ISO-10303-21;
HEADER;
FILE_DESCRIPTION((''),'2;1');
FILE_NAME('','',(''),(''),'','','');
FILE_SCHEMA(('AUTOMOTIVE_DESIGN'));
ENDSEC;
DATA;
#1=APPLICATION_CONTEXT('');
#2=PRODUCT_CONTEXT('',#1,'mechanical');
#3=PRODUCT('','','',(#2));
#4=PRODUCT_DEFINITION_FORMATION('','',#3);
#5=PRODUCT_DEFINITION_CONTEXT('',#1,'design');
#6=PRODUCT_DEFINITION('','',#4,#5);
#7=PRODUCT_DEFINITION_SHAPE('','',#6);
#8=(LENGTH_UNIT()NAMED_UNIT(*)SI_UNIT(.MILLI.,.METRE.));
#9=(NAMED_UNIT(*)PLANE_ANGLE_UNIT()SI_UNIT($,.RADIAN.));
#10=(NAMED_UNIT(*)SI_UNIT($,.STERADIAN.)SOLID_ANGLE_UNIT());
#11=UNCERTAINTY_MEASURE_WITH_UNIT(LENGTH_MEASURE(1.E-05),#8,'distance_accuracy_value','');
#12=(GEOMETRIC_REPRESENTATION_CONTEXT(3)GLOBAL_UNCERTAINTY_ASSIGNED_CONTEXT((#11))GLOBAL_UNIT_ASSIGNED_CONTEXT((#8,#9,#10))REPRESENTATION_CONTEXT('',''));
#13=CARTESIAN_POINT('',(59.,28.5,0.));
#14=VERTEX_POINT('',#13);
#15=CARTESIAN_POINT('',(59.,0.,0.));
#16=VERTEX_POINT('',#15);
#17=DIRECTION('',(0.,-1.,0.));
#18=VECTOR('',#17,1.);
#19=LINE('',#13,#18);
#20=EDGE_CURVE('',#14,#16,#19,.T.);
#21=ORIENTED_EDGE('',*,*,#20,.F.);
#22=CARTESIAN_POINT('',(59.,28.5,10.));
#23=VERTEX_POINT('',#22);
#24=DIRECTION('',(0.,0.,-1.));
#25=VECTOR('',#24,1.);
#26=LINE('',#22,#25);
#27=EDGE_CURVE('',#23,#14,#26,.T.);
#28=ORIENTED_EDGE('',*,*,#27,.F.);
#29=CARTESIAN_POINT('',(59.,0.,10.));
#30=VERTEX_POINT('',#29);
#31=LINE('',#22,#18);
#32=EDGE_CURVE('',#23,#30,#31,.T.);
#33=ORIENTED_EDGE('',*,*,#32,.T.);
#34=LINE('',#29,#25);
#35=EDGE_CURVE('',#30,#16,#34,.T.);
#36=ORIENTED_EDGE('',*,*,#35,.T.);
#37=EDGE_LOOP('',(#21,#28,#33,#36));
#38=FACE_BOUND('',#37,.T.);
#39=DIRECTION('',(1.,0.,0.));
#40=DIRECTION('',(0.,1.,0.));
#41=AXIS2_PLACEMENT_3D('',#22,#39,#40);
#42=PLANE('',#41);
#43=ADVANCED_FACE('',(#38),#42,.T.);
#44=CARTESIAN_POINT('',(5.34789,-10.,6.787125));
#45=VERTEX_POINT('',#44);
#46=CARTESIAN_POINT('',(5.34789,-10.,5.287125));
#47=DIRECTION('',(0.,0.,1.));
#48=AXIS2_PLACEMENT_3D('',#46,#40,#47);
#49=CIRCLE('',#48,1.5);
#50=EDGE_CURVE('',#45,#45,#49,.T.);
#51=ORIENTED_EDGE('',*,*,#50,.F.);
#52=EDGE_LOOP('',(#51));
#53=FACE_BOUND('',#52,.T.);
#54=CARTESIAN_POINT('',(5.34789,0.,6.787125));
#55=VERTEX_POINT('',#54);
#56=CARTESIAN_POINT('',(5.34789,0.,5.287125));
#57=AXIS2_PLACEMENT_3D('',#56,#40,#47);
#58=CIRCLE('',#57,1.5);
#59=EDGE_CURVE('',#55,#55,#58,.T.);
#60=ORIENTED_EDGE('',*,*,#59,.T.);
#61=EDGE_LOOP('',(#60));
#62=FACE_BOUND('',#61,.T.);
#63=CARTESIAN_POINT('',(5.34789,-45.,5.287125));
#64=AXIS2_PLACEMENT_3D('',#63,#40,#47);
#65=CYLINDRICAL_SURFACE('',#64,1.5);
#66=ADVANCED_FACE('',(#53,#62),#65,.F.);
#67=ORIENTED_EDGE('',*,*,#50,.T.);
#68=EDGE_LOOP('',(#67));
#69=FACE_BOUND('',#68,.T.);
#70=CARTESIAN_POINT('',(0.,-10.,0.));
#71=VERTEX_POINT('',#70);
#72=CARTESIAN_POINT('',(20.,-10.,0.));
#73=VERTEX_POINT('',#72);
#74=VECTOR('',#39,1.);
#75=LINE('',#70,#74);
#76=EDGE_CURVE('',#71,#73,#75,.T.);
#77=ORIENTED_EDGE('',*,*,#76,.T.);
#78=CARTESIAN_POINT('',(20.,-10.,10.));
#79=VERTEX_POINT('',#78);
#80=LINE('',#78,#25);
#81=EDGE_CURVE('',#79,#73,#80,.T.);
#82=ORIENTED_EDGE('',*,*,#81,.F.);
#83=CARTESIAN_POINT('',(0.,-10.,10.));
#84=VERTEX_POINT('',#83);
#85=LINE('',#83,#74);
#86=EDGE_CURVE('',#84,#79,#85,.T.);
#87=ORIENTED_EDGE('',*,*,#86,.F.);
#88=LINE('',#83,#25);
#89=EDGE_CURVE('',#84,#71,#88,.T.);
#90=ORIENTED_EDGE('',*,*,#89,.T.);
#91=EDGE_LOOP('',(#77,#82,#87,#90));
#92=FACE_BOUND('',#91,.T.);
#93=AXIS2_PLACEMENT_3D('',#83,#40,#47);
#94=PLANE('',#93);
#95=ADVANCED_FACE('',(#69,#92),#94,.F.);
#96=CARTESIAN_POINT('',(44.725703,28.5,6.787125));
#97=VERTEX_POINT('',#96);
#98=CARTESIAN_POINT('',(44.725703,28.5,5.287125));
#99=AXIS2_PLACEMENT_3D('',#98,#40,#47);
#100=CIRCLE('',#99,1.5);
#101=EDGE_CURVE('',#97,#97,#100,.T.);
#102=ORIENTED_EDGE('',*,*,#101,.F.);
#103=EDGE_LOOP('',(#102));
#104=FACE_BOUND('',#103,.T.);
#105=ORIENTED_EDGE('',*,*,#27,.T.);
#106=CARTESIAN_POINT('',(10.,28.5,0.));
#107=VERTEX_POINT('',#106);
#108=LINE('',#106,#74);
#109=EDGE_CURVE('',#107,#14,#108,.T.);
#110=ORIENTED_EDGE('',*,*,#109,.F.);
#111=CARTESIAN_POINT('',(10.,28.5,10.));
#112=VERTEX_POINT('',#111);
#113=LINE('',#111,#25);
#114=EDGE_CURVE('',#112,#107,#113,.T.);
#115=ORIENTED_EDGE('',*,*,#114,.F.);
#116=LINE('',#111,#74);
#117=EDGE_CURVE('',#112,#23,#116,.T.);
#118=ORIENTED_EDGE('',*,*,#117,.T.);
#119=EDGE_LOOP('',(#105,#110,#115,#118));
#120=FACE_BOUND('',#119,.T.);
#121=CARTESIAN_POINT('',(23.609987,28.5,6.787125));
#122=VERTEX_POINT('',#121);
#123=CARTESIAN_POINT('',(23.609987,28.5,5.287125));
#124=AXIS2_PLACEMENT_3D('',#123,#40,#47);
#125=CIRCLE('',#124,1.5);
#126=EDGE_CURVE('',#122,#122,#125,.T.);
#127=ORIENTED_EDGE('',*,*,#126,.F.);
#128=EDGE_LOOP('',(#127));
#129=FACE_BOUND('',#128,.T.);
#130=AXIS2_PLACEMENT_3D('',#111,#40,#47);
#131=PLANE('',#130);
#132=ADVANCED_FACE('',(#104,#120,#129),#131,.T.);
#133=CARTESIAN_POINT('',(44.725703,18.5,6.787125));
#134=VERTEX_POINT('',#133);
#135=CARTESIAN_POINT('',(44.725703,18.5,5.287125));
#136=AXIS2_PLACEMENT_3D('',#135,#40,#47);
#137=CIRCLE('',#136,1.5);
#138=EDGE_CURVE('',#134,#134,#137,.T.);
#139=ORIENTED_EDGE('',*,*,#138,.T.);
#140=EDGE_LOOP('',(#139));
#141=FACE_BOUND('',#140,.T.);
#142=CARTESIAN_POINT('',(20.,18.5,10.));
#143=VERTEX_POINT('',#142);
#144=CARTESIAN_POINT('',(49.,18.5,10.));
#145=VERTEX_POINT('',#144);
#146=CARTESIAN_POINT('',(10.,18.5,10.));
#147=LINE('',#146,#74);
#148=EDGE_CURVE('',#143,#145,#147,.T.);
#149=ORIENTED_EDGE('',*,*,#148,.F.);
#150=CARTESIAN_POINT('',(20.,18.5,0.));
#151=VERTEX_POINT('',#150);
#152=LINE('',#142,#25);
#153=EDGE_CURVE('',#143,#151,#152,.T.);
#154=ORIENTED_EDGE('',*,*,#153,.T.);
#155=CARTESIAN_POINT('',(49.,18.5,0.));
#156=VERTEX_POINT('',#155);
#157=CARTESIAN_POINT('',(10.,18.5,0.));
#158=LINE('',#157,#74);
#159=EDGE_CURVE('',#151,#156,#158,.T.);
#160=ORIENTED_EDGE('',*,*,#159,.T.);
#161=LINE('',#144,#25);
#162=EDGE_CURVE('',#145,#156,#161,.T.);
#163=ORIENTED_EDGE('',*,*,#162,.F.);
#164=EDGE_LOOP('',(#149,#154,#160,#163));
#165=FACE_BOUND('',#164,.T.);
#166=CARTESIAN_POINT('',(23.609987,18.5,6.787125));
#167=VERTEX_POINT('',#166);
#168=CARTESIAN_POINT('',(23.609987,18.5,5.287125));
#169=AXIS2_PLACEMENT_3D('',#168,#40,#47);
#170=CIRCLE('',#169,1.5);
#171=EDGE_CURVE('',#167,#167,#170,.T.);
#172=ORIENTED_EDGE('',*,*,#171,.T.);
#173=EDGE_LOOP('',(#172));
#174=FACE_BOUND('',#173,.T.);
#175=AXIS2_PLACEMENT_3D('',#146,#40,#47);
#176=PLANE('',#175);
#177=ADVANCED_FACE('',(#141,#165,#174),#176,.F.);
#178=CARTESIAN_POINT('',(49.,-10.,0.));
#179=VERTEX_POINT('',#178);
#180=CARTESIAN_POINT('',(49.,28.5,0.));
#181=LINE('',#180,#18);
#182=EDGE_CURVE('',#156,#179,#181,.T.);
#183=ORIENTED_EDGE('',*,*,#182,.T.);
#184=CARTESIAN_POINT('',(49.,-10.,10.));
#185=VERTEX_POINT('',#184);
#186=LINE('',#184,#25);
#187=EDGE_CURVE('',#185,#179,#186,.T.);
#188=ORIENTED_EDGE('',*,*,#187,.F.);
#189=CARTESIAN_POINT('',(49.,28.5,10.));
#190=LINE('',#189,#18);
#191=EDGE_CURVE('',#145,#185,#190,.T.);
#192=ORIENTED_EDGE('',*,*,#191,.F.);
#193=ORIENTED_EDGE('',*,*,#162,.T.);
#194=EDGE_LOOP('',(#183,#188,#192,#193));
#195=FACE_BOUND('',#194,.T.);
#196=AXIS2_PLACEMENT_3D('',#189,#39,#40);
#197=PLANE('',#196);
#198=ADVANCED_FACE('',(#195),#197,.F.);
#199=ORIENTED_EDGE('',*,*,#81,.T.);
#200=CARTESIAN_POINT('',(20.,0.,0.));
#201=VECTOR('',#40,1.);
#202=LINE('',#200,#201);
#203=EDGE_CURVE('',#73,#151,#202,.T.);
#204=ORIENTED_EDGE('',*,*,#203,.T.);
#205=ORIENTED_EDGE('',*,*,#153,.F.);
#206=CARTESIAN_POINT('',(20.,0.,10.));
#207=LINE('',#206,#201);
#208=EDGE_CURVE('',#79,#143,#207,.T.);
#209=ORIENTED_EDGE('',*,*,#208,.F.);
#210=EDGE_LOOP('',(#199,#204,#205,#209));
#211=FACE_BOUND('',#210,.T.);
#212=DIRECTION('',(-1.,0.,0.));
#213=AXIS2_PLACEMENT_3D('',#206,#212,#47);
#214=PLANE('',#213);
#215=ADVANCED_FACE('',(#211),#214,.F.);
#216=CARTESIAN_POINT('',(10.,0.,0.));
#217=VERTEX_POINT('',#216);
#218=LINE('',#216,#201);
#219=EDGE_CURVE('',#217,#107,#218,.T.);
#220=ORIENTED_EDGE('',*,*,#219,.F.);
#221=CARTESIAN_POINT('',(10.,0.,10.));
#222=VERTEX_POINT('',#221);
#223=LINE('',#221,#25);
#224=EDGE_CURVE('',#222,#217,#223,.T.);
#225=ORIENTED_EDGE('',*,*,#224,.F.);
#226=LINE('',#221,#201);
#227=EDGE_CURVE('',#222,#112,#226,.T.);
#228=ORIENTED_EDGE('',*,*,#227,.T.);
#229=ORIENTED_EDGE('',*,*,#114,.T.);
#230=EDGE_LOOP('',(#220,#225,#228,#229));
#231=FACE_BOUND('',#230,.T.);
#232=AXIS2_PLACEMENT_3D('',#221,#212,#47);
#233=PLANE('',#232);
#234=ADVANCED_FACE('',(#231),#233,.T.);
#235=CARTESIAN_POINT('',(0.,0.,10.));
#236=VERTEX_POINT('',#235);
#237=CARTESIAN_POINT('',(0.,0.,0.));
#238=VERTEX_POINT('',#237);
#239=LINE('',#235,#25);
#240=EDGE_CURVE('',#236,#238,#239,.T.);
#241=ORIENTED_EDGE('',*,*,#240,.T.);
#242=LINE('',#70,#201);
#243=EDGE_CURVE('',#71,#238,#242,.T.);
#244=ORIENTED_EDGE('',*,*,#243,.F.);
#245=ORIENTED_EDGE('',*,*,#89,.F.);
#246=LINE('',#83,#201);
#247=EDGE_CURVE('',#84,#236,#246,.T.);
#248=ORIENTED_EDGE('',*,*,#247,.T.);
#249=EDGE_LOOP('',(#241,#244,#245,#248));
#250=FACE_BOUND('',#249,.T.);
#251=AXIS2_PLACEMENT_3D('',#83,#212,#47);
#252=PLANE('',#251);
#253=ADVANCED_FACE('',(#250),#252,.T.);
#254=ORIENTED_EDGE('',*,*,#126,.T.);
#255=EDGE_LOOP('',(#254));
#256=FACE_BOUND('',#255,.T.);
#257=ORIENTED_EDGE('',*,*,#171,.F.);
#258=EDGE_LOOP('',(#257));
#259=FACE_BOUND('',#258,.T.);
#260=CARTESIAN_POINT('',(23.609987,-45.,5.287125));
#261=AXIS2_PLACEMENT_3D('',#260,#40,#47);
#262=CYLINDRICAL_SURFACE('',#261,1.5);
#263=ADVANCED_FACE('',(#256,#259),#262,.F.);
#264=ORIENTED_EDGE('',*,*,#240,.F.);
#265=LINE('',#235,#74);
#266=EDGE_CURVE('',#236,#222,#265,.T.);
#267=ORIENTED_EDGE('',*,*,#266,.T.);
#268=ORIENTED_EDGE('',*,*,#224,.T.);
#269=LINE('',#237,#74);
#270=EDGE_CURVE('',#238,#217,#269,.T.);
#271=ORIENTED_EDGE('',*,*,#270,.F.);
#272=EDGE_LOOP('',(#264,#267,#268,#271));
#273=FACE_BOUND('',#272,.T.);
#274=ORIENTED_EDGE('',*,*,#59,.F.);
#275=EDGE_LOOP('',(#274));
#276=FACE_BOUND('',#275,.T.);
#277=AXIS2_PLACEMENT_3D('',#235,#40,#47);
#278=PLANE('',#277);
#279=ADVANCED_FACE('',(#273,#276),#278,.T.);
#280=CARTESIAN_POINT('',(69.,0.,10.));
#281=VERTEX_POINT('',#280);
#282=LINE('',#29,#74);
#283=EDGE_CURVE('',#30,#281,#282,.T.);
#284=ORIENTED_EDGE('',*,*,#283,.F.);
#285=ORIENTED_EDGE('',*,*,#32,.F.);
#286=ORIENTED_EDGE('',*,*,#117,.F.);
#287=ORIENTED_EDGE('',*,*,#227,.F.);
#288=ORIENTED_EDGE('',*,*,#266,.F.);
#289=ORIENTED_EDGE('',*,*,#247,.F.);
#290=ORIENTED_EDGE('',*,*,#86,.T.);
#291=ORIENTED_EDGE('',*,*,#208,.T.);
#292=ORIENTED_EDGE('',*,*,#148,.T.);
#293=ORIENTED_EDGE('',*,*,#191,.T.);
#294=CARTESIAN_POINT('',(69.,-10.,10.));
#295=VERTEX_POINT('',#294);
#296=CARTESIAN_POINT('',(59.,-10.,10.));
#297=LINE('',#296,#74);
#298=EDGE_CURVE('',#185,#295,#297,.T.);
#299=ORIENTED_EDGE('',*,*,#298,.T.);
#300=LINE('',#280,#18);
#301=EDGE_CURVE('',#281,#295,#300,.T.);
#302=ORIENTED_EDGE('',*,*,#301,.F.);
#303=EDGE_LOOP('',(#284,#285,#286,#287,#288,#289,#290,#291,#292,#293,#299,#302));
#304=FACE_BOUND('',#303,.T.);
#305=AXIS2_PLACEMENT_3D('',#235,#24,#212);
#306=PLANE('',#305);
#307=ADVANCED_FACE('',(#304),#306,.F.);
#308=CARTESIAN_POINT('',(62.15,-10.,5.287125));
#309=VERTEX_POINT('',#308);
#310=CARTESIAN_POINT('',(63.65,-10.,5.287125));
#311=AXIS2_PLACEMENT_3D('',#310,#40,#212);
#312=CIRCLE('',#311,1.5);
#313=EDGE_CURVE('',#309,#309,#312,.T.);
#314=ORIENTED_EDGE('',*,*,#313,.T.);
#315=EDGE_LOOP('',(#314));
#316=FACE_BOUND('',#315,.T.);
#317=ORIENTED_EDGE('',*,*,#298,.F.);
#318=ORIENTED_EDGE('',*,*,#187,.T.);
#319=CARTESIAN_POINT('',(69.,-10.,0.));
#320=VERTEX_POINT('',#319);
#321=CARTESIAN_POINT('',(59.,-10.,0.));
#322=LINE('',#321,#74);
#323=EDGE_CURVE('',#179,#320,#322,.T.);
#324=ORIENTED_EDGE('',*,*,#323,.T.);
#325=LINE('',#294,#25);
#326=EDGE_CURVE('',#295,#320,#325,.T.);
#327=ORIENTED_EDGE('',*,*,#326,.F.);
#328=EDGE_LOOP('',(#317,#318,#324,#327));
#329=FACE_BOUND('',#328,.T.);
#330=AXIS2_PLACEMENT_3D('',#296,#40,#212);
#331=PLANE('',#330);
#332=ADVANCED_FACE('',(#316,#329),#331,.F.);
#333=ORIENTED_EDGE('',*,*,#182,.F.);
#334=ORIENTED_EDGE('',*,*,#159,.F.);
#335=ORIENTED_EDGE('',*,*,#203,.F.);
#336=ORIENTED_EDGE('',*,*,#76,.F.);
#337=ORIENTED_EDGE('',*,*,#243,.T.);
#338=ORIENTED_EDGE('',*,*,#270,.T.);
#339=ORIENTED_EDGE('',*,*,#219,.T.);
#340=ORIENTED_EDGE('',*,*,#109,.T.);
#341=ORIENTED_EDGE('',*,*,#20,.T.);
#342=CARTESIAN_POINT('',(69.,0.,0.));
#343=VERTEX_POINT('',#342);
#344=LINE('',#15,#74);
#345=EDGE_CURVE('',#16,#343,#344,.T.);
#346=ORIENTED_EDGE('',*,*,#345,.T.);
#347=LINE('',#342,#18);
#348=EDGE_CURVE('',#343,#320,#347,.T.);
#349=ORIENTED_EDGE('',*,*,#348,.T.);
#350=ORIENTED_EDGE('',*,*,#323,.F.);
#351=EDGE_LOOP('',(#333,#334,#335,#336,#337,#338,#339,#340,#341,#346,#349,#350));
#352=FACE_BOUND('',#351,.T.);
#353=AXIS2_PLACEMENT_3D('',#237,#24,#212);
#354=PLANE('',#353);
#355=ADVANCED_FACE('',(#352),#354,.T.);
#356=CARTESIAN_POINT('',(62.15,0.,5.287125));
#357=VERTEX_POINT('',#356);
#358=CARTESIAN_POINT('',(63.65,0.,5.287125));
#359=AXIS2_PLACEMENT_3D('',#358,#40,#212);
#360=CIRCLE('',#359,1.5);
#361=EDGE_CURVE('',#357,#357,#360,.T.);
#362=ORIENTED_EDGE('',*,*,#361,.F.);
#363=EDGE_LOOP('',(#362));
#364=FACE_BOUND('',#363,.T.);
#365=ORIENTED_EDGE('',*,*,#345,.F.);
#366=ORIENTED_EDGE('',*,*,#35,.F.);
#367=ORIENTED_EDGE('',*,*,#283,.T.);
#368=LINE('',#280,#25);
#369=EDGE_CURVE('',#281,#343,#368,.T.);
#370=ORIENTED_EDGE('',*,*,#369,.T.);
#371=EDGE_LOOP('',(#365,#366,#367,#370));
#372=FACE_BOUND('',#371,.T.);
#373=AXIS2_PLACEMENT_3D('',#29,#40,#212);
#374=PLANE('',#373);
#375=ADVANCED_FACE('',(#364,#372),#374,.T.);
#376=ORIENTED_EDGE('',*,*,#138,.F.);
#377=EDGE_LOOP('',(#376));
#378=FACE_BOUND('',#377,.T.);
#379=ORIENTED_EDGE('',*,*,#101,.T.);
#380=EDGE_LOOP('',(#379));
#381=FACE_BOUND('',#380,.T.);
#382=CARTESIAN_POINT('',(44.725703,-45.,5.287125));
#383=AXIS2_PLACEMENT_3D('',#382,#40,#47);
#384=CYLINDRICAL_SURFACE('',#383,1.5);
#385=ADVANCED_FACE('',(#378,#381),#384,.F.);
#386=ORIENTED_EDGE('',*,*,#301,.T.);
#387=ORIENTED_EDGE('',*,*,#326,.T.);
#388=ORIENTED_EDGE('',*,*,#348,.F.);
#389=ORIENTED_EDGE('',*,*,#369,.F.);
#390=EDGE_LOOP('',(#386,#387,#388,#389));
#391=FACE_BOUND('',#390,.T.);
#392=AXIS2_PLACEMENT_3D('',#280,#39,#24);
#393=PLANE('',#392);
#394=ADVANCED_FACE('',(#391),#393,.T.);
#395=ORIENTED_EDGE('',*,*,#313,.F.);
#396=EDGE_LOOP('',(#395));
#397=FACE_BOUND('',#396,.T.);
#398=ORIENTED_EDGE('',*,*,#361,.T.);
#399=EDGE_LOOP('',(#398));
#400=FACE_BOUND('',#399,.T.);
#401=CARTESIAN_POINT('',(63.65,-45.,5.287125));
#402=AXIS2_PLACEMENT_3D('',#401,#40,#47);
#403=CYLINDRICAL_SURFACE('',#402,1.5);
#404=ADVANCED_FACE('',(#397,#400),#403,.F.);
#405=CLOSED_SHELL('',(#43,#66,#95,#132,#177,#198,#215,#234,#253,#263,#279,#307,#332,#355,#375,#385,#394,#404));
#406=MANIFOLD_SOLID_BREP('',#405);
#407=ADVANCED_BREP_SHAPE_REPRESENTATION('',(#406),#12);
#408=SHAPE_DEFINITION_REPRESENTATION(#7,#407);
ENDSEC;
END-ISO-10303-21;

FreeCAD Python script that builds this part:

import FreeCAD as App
import Part
import Sketcher
from FreeCAD import Vector
Q = App.Units.Quantity

doc = App.newDocument("Part")
params = doc.addObject("Spreadsheet::Sheet", "Params")
for row, (alias, value) in enumerate([
    ("sketch1_width", "10 mm"),
    ("sketch1_width2", "20 mm"),
    ("sketch1_width3", "29 mm"),
    ("sketch1_height", "28.5 mm"),
    ("pad1_length", "10 mm"),
    ("sketch2_diameter", "3 mm"),
], start=1):
    params.set(f"A{row}", alias)
    params.set(f"B{row}", "=" + value)
    params.setAlias(f"B{row}", alias)

body = doc.addObject("PartDesign::Body", "Body")

# Sketch on XY plane
sketch1 = body.newObject("Sketcher::SketchObject", "Sketch")
sketch1.AttachmentSupport = (doc.getObject("XY_Plane"), [""])
sketch1.MapMode = "FlatFace"
sketch1.addGeometry([
    Part.LineSegment(Vector(10, 0, 0), Vector(0, 0, 0)),  # 0
    Part.LineSegment(Vector(0, 0, 0), Vector(0, -10, 0)),  # 1
    Part.LineSegment(Vector(0, -10, 0), Vector(20, -10, 0)),  # 2
    Part.LineSegment(Vector(20, -10, 0), Vector(20, 18, 0)),  # 3
    Part.LineSegment(Vector(20, 18, 0), Vector(49, 18, 0)),  # 4
    Part.LineSegment(Vector(49, 18, 0), Vector(49, -10, 0)),  # 5
    Part.LineSegment(Vector(49, -10, 0), Vector(69, -10, 0)),  # 6
    Part.LineSegment(Vector(69, -10, 0), Vector(69, 0, 0)),  # 7
    Part.LineSegment(Vector(69, 0, 0), Vector(59, 0, 0)),  # 8
    Part.LineSegment(Vector(59, 0, 0), Vector(59, 28, 0)),  # 9
    Part.LineSegment(Vector(59, 28, 0), Vector(10, 28, 0)),  # 10
    Part.LineSegment(Vector(10, 28, 0), Vector(10, 0, 0)),  # 11
], False)
sketch1.addConstraint([
    Sketcher.Constraint("Coincident", 0, 2, 1, 1),
    Sketcher.Constraint("Coincident", 1, 2, 2, 1),
    Sketcher.Constraint("Coincident", 2, 2, 3, 1),
    Sketcher.Constraint("Coincident", 3, 2, 4, 1),
    Sketcher.Constraint("Coincident", 4, 2, 5, 1),
    Sketcher.Constraint("Coincident", 5, 2, 6, 1),
    Sketcher.Constraint("Coincident", 6, 2, 7, 1),
    Sketcher.Constraint("Coincident", 7, 2, 8, 1),
    Sketcher.Constraint("Coincident", 8, 2, 9, 1),
    Sketcher.Constraint("Coincident", 9, 2, 10, 1),
    Sketcher.Constraint("Coincident", 10, 2, 11, 1),
    Sketcher.Constraint("Coincident", 11, 2, 0, 1),
    Sketcher.Constraint("Horizontal", 0),
    Sketcher.Constraint("Vertical", 1),
    Sketcher.Constraint("Horizontal", 2),
    Sketcher.Constraint("Vertical", 3),
    Sketcher.Constraint("Horizontal", 4),
    Sketcher.Constraint("Vertical", 5),
    Sketcher.Constraint("Horizontal", 6),
    Sketcher.Constraint("Vertical", 7),
    Sketcher.Constraint("Horizontal", 8),
    Sketcher.Constraint("Vertical", 9),
    Sketcher.Constraint("Horizontal", 10),
    Sketcher.Constraint("Vertical", 11),
    Sketcher.Constraint("Coincident", 0, 2, -1, 1),
    Sketcher.Constraint("PointOnObject", 7, 2, -1),
    Sketcher.Constraint("Horizontal", 2, 2, 5, 2),
    Sketcher.Constraint("Equal", 2, 6),
    Sketcher.Constraint("Equal", 0, 8),
    Sketcher.Constraint("Equal", 8, 1),
    Sketcher.Constraint("Equal", 5, 9),
    Sketcher.Constraint("DistanceX", 0, 2, 0, 1, Q("10 mm")),
    Sketcher.Constraint("DistanceX", 2, 1, 2, 2, Q("20 mm")),
    Sketcher.Constraint("DistanceX", 4, 1, 4, 2, Q("29 mm")),
    Sketcher.Constraint("DistanceY", 3, 1, 3, 2, Q("28.5 mm")),
])
sketch1.setExpression("Constraints[31]", "Params.sketch1_width")
sketch1.setExpression("Constraints[32]", "Params.sketch1_width2")
sketch1.setExpression("Constraints[33]", "Params.sketch1_width3")
sketch1.setExpression("Constraints[34]", "Params.sketch1_height")
pad1 = body.newObject("PartDesign::Pad", "Pad")
pad1.Profile = sketch1
pad1.setExpression("Length", "Params.pad1_length")

# Sketch on XZ plane
sketch2 = body.newObject("Sketcher::SketchObject", "Sketch001")
sketch2.AttachmentSupport = (doc.getObject("XZ_Plane"), [""])
sketch2.MapMode = "FlatFace"
sketch2.addGeometry([
    Part.Circle(Vector(5.3, 5.3, 0), Vector(0, 0, 1), 1.5),
    Part.Circle(Vector(63.6, 5.3, 0), Vector(0, 0, 1), 1.5),
    Part.Circle(Vector(23.6, 5.3, 0), Vector(0, 0, 1), 1.5),
    Part.Circle(Vector(44.7, 5.3, 0), Vector(0, 0, 1), 1.5),
], False)
sketch2.addConstraint([
    Sketcher.Constraint("Equal", 0, 1),
    Sketcher.Constraint("Equal", 1, 2),
    Sketcher.Constraint("Equal", 2, 3),
    Sketcher.Constraint("Horizontal", 0, 3, 1, 3),
    Sketcher.Constraint("Horizontal", 1, 3, 2, 3),
    Sketcher.Constraint("Horizontal", 2, 3, 3, 3),
    Sketcher.Constraint("Diameter", 0, Q("3 mm")),
    Sketcher.Constraint("DistanceX", -1, 1, 1, 3, Q("63.65 mm")),
    Sketcher.Constraint("DistanceX", -1, 1, 0, 3, Q("5.34789 mm")),
    Sketcher.Constraint("DistanceY", -1, 1, 0, 3, Q("5.287125 mm")),
    Sketcher.Constraint("DistanceX", -1, 1, 2, 3, Q("23.609987 mm")),
    Sketcher.Constraint("DistanceX", -1, 1, 3, 3, Q("44.725703 mm")),
])
sketch2.setExpression("Constraints[6]", "Params.sketch2_diameter")
pocket1 = body.newObject("PartDesign::Pocket", "Pocket")
pocket1.Profile = sketch2
pocket1.Type = "ThroughAll"
pocket1.Midplane = True

doc.recompute()
